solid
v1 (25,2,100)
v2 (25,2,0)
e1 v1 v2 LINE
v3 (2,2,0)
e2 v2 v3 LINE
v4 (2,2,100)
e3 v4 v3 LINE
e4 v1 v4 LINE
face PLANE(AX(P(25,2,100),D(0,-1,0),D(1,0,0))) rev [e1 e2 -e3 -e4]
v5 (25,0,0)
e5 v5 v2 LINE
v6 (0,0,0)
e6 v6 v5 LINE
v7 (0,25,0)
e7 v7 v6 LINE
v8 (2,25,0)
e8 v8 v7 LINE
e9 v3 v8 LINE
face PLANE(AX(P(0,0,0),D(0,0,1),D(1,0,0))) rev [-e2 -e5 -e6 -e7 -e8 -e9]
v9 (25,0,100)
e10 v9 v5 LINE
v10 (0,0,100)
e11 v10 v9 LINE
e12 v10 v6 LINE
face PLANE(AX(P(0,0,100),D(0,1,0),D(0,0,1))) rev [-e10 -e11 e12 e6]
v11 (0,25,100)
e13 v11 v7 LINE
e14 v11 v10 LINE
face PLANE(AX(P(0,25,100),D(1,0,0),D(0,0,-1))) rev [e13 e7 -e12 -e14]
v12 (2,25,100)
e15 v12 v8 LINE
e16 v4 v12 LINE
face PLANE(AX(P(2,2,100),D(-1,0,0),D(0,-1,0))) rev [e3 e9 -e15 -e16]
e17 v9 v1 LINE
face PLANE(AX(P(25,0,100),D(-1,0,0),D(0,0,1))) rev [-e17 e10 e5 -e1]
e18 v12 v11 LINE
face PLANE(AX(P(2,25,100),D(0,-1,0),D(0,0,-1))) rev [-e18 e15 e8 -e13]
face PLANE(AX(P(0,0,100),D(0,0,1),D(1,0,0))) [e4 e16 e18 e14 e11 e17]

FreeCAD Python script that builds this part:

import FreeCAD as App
import Part
import Sketcher
Q = App.Units.Quantity

doc = App.newDocument("Part")
params = doc.addObject("Spreadsheet::Sheet", "Params")
for row, (alias, value) in enumerate([
    ("sketch1_width", "25 mm"),
    ("sketch1_width2", "23 mm"),
    ("pad1_length", "100 mm"),
], start=1):
    params.set(f"A{row}", alias)
    params.set(f"B{row}", "=" + value)
    params.setAlias(f"B{row}", alias)

body = doc.addObject("PartDesign::Body", "Body")

sketch1 = body.newObject("Sketcher::SketchObject", "Sketch")
sketch1.AttachmentSupport = (doc.getObject("XY_Plane"), [""])
sketch1.MapMode = "FlatFace"
sketch1.addGeometry([
    Part.LineSegment(App.Vector(0, 0, 0), App.Vector(25, 0, 0)),
    Part.LineSegment(App.Vector(25, 0, 0), App.Vector(25, 2, 0)),
    Part.LineSegment(App.Vector(25, 2, 0), App.Vector(2, 2, 0)),
    Part.LineSegment(App.Vector(2, 2, 0), App.Vector(2, 25, 0)),
    Part.LineSegment(App.Vector(2, 25, 0), App.Vector(0, 25, 0)),
    Part.LineSegment(App.Vector(0, 25, 0), App.Vector(0, 0, 0)),
], False)
sketch1.addConstraint([
    Sketcher.Constraint("Coincident", 0, 2, 1, 1),
    Sketcher.Constraint("Coincident", 1, 2, 2, 1),
    Sketcher.Constraint("Coincident", 2, 2, 3, 1),
    Sketcher.Constraint("Coincident", 3, 2, 4, 1),
    Sketcher.Constraint("Coincident", 4, 2, 5, 1),
    Sketcher.Constraint("Coincident", 5, 2, 0, 1),
    Sketcher.Constraint("Horizontal", 0),
    Sketcher.Constraint("Vertical", 1),
    Sketcher.Constraint("Horizontal", 2),
    Sketcher.Constraint("Vertical", 3),
    Sketcher.Constraint("Horizontal", 4),
    Sketcher.Constraint("Vertical", 5),
    Sketcher.Constraint("Coincident", 5, 2, -1, 1),
    Sketcher.Constraint("Equal", 4, 1),
    Sketcher.Constraint("Equal", 2, 3),
    Sketcher.Constraint("DistanceX", 0, 1, 0, 2, Q("25 mm")),
    Sketcher.Constraint("DistanceX", 2, 2, 2, 1, Q("23 mm")),
])
sketch1.setExpression("Constraints[15]", "Params.sketch1_width")
sketch1.setExpression("Constraints[16]", "Params.sketch1_width2")
pad1 = body.newObject("PartDesign::Pad", "Pad")
pad1.Profile = sketch1
pad1.setExpression("Length", "Params.pad1_length")

doc.recompute()
